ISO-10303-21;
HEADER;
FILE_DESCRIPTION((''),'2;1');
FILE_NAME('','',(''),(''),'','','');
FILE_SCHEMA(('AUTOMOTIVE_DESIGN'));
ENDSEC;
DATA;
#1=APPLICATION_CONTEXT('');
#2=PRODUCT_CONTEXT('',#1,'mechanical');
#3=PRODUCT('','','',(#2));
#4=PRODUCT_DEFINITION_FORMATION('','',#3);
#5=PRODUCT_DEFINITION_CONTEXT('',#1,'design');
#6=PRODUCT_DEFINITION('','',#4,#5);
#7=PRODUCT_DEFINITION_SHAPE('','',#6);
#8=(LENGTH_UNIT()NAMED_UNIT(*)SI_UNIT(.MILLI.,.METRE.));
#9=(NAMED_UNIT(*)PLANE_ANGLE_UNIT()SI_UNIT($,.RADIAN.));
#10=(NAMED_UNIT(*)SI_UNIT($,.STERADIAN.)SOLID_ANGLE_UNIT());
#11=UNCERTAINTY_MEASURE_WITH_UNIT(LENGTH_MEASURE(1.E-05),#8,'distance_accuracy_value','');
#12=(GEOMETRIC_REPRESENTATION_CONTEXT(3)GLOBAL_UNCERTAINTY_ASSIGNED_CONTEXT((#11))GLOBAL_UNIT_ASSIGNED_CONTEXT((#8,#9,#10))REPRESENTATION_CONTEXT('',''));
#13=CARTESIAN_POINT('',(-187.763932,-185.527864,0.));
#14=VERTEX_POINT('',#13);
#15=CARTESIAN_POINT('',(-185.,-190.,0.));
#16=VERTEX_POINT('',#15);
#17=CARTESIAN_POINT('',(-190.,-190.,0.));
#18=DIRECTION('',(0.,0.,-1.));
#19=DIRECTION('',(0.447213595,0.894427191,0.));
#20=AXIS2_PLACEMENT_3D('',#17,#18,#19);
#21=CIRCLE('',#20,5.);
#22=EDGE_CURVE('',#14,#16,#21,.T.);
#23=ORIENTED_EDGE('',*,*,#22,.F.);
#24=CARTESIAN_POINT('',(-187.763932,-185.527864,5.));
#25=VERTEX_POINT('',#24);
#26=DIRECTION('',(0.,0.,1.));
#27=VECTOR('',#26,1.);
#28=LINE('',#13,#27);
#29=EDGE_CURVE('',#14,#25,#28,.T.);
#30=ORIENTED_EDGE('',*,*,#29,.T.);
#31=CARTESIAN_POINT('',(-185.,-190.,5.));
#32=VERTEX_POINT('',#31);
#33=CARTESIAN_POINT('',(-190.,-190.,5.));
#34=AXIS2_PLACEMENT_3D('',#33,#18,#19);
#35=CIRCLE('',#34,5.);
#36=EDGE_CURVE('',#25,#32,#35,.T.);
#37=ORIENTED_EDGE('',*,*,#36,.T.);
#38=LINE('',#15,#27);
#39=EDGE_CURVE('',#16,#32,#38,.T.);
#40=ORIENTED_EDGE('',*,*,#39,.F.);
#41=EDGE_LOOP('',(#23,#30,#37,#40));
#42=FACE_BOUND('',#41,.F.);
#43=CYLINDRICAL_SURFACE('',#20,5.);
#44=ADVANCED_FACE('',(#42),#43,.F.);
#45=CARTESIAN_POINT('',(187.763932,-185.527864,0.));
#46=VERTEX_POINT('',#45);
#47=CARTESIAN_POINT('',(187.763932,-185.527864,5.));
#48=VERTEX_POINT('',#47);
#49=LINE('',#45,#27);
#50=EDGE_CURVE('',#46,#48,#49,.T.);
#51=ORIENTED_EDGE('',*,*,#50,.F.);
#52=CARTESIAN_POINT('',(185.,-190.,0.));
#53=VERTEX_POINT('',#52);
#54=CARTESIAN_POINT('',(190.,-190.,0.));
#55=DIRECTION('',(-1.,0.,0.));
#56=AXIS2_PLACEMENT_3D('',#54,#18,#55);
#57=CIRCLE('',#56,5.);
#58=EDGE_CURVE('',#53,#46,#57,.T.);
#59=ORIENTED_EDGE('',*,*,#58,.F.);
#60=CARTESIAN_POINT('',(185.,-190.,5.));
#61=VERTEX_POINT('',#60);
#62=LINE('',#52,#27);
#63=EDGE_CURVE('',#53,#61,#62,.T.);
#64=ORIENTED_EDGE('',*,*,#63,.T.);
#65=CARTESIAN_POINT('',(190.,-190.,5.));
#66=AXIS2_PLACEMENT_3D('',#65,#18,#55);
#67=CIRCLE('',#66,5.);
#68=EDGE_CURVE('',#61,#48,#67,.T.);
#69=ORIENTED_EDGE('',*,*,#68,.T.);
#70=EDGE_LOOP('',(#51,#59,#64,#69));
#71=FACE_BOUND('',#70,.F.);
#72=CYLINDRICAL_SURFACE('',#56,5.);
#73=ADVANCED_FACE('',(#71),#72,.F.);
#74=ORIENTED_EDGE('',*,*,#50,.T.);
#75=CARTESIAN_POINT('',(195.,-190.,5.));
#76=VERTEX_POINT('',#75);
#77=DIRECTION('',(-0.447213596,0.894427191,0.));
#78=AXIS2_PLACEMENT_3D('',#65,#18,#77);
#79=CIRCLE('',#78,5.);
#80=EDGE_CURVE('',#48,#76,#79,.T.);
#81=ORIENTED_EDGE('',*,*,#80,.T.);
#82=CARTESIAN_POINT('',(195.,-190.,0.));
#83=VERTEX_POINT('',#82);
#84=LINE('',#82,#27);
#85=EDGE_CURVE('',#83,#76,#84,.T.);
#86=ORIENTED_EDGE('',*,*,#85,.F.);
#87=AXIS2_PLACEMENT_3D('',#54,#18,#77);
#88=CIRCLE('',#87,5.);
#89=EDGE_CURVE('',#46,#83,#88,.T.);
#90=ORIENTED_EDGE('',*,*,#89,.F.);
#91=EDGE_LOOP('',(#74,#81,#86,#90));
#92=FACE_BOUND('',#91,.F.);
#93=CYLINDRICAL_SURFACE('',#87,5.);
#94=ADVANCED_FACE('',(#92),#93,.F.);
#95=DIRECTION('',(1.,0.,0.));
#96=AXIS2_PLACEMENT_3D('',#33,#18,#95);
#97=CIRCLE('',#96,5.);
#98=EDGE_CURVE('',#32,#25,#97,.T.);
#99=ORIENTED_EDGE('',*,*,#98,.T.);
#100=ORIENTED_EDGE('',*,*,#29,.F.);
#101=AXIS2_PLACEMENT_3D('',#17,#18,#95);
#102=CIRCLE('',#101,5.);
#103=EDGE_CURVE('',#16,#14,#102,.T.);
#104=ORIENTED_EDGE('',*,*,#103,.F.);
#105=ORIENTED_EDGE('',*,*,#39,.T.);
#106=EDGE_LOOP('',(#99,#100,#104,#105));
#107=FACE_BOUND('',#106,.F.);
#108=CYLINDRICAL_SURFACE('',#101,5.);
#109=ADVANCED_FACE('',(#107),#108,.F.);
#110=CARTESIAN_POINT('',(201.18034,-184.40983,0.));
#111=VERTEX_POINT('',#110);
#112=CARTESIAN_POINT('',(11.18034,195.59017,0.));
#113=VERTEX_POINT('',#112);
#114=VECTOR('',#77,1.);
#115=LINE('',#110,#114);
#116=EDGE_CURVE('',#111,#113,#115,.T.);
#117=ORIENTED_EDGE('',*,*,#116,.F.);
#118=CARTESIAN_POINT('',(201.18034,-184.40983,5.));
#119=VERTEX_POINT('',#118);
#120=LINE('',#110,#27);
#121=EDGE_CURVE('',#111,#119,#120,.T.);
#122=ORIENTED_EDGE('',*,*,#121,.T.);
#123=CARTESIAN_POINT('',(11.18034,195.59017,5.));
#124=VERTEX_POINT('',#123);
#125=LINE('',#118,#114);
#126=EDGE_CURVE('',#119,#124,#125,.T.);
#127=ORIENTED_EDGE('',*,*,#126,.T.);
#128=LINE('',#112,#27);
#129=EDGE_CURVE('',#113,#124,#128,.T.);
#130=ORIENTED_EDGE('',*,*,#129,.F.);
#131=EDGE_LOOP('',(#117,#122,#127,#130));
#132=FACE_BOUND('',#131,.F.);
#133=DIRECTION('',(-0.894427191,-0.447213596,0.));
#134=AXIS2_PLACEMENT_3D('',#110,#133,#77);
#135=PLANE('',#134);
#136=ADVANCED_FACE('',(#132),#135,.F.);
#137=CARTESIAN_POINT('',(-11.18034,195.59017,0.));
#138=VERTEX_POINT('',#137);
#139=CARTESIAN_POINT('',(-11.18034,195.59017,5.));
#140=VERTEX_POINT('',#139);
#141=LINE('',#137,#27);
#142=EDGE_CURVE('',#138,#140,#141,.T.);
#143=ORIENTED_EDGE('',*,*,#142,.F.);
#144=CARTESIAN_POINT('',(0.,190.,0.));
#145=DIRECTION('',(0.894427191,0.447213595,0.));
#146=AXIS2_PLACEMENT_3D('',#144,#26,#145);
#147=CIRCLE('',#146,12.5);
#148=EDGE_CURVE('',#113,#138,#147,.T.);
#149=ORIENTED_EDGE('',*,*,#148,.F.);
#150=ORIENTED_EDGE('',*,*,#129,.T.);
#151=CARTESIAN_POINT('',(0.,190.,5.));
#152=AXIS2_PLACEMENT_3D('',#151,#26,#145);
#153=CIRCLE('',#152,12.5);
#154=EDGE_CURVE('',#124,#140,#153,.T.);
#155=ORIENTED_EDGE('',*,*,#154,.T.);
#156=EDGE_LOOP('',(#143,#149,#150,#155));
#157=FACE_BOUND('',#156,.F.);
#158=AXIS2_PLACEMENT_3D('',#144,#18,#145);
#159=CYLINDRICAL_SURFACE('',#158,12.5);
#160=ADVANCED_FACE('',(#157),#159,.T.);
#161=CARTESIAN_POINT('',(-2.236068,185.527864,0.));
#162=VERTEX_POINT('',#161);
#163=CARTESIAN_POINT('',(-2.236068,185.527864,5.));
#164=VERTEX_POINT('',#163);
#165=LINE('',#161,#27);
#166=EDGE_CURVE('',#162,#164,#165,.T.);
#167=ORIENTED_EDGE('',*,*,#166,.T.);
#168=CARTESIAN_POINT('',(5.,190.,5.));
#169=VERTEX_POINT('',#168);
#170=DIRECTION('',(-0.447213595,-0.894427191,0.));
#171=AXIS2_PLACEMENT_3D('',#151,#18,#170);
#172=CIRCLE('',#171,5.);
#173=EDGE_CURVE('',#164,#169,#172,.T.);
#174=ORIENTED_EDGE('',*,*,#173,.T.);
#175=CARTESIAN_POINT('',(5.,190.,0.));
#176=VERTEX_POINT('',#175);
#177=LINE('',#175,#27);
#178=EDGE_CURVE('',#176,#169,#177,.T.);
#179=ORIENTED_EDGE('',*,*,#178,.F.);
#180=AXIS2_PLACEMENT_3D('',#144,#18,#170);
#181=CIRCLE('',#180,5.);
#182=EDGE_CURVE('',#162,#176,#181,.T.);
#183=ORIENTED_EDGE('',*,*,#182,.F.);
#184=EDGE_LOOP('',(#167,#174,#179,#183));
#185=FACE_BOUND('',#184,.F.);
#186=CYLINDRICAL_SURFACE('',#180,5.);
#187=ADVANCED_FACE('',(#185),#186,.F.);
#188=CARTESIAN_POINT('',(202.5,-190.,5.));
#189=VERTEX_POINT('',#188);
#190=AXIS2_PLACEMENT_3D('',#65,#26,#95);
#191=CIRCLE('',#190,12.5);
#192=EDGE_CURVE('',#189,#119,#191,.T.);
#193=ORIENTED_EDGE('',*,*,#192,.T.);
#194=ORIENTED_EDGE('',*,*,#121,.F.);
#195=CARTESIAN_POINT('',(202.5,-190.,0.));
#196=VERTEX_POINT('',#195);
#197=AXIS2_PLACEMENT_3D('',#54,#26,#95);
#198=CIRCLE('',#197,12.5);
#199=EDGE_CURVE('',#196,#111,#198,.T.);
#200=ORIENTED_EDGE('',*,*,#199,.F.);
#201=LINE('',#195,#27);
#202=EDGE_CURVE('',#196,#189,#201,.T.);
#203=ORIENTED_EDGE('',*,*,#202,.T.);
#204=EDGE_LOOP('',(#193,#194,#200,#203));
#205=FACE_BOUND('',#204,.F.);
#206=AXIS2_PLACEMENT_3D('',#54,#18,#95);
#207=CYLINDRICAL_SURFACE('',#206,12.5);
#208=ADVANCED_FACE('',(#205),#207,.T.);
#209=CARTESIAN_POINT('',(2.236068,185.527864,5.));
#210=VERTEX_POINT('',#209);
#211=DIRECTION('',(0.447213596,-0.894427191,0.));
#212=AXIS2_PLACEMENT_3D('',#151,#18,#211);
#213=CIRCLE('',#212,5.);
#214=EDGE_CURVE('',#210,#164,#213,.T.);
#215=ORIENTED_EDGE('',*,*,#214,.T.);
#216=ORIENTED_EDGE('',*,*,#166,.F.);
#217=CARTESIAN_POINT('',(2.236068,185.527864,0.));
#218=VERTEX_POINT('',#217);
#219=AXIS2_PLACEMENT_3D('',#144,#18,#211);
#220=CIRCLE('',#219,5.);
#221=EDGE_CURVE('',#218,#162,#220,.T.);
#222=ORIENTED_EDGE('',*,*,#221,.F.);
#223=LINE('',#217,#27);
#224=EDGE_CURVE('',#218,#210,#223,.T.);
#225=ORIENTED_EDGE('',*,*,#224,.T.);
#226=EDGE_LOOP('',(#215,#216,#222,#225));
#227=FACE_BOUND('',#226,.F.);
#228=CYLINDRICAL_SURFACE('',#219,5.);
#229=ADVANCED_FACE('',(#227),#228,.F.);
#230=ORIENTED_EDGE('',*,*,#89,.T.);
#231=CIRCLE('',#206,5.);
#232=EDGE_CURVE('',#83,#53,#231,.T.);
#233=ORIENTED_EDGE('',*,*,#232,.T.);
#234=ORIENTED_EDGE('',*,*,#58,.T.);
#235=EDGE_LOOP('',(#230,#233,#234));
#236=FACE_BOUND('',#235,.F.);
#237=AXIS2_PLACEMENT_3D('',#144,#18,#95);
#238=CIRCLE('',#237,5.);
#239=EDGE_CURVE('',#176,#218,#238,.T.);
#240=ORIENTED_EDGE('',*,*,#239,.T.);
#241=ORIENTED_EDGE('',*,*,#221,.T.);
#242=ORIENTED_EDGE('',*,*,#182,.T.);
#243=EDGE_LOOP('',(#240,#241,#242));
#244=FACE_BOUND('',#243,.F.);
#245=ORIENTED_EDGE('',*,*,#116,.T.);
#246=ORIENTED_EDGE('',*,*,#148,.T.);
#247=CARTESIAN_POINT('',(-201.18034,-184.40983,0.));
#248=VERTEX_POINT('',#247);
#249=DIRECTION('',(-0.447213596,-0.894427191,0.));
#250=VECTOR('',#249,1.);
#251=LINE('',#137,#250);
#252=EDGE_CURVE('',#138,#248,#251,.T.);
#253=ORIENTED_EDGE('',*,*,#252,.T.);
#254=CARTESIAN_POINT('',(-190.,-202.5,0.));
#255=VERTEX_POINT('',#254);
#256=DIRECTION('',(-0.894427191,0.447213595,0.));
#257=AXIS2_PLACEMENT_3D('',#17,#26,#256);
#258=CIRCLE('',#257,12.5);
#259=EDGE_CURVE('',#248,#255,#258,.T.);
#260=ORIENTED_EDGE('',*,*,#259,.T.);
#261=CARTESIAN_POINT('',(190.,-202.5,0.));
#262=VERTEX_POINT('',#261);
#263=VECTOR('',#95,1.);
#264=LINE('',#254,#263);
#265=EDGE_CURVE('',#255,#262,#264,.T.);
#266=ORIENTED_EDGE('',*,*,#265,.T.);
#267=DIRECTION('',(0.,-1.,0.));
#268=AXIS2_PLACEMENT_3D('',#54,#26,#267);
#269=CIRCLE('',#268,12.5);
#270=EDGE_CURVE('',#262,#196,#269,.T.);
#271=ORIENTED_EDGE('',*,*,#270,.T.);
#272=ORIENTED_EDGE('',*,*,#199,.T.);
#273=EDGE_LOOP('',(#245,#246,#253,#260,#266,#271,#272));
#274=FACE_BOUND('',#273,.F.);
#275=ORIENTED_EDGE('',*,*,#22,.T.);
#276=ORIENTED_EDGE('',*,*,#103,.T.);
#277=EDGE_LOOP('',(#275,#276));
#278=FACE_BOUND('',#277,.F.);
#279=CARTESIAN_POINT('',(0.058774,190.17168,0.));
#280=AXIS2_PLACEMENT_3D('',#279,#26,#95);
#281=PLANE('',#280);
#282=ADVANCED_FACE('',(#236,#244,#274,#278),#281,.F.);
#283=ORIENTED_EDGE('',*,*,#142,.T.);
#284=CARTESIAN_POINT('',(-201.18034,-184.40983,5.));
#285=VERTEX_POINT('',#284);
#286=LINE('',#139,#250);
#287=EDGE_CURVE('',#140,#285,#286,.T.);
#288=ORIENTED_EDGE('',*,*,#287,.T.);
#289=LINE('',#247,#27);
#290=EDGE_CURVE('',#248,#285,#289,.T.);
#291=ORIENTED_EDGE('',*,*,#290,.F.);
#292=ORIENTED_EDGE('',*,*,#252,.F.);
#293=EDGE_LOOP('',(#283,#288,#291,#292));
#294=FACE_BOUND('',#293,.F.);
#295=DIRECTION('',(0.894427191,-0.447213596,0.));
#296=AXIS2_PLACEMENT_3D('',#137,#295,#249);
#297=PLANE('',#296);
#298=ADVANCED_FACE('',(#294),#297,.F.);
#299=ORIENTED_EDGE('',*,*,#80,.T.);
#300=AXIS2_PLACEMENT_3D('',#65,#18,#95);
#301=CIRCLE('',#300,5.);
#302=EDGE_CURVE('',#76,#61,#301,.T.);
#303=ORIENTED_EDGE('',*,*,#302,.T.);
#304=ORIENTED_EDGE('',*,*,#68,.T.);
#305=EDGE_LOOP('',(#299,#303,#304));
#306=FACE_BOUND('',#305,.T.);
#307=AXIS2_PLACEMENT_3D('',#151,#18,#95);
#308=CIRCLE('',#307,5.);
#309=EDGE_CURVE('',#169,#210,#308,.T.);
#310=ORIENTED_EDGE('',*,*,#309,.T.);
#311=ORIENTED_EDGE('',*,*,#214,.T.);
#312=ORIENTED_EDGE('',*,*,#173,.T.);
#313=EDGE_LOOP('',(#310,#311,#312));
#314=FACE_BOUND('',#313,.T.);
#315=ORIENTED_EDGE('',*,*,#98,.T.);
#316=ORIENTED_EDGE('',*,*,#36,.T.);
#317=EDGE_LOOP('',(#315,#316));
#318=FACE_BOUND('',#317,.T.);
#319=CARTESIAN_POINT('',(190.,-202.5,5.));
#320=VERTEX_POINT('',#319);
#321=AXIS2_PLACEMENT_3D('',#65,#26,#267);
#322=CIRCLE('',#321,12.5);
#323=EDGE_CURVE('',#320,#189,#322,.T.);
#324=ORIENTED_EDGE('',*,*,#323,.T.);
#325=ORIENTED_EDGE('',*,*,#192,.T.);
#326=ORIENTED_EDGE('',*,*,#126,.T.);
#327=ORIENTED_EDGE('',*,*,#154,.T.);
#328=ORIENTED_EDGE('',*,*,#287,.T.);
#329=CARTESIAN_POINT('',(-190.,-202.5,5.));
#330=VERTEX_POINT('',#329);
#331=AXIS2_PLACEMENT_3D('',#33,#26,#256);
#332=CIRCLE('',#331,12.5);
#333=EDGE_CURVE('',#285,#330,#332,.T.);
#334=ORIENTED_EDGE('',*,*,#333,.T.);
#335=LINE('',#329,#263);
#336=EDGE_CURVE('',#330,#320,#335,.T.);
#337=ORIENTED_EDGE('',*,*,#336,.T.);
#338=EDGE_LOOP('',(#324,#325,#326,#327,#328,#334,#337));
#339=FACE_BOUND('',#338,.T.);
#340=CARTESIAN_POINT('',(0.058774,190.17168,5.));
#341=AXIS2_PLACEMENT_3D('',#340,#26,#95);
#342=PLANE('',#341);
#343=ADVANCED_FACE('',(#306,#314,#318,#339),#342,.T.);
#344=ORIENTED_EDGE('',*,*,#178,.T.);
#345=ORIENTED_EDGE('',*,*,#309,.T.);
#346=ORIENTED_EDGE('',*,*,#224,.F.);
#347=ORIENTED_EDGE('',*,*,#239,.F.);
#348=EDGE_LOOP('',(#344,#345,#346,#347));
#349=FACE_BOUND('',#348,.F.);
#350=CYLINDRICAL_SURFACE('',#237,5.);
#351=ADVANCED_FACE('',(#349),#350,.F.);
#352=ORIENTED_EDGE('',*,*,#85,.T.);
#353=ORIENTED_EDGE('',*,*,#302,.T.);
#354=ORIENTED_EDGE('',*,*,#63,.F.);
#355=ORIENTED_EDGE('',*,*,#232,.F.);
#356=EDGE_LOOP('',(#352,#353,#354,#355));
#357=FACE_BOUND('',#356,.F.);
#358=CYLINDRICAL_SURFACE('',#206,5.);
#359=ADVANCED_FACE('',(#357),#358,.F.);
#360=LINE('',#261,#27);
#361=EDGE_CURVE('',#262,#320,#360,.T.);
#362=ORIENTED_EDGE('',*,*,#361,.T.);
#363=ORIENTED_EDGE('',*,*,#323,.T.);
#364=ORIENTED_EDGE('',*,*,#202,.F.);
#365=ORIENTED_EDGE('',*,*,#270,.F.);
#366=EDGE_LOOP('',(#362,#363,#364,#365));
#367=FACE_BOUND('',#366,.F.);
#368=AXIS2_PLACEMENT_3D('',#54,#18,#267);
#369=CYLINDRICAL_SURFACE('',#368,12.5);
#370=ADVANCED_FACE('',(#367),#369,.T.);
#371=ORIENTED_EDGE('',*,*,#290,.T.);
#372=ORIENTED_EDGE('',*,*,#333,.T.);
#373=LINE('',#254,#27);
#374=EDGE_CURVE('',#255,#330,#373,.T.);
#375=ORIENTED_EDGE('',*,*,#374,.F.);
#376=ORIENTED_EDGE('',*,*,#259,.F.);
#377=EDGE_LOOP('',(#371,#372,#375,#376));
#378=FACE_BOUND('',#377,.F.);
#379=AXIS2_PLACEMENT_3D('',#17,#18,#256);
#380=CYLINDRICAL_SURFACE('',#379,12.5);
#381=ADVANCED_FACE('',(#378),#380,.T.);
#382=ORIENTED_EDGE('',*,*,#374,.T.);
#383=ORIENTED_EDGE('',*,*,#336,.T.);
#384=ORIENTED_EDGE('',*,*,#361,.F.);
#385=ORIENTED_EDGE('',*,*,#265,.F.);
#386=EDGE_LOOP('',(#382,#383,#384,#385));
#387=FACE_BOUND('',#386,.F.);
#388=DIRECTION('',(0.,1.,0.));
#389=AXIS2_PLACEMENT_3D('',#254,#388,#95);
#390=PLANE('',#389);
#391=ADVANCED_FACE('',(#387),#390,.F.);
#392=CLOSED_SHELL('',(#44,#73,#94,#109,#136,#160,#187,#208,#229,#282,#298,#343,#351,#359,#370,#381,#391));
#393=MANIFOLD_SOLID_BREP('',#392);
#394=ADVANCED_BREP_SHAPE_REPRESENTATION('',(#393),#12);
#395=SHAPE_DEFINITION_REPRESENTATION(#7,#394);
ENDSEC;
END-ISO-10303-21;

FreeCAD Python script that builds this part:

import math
import FreeCAD as App
import Part
import Sketcher
Q = App.Units.Quantity

doc = App.newDocument("Part")
body = doc.addObject("PartDesign::Body", "Body")

# Sketch on XY plane
sketch1 = body.newObject("Sketcher::SketchObject", "Sketch")
sketch1.AttachmentSupport = (doc.getObject("XY_Plane"), [""])
sketch1.MapMode = "FlatFace"
sketch1.addGeometry(Part.LineSegment(App.Vector(201.2, -184.4, 0), App.Vector(11.2, 195.6, 0)), False)
sketch1.addGeometry(Part.ArcOfCircle(Part.Circle(App.Vector(0, 190, 0), App.Vector(0, 0, 1), 12.5), math.radians(27), math.radians(153)), False)
sketch1.addGeometry(Part.LineSegment(App.Vector(-11.2, 195.6, 0), App.Vector(-201.2, -184.4, 0)), False)
sketch1.addGeometry(Part.ArcOfCircle(Part.Circle(App.Vector(-190, -190, 0), App.Vector(0, 0, 1), 12.5), math.radians(153), math.radians(270)), False)
sketch1.addGeometry(Part.LineSegment(App.Vector(-190, -202.5, 0), App.Vector(190, -202.5, 0)), False)
sketch1.addGeometry(Part.ArcOfCircle(Part.Circle(App.Vector(190, -190, 0), App.Vector(0, 0, 1), 12.5), math.radians(-90), math.radians(0)), False)
sketch1.addGeometry(Part.ArcOfCircle(Part.Circle(App.Vector(190, -190, 0), App.Vector(0, 0, 1), 12.5), math.radians(0), math.radians(27)), False)
sketch1.addGeometry(Part.ArcOfCircle(Part.Circle(App.Vector(190, -190, 0), App.Vector(0, 0, 1), 5), math.radians(0), math.radians(117)), False)
sketch1.addGeometry(Part.ArcOfCircle(Part.Circle(App.Vector(190, -190, 0), App.Vector(0, 0, 1), 5), math.radians(180), math.radians(360)), False)
sketch1.addGeometry(Part.ArcOfCircle(Part.Circle(App.Vector(190, -190, 0), App.Vector(0, 0, 1), 5), math.radians(117), math.radians(180)), False)
sketch1.addGeometry(Part.ArcOfCircle(Part.Circle(App.Vector(-190, -190, 0), App.Vector(0, 0, 1), 5), math.radians(63), math.radians(360)), False)
sketch1.addGeometry(Part.ArcOfCircle(Part.Circle(App.Vector(-190, -190, 0), App.Vector(0, 0, 1), 5), math.radians(0), math.radians(63)), False)
sketch1.addGeometry(Part.ArcOfCircle(Part.Circle(App.Vector(0, 190, 0), App.Vector(0, 0, 1), 5), math.radians(0), math.radians(243)), False)
sketch1.addGeometry(Part.ArcOfCircle(Part.Circle(App.Vector(0, 190, 0), App.Vector(0, 0, 1), 5), math.radians(-63), math.radians(0)), False)
sketch1.addGeometry(Part.ArcOfCircle(Part.Circle(App.Vector(0, 190, 0), App.Vector(0, 0, 1), 5), math.radians(-117), math.radians(-63)), False)
sketch1.addConstraint(Sketcher.Constraint("Tangent", 0, 2, 1, 1))
sketch1.addConstraint(Sketcher.Constraint("Tangent", 1, 2, 2, 1))
sketch1.addConstraint(Sketcher.Constraint("Tangent", 2, 2, 3, 1))
sketch1.addConstraint(Sketcher.Constraint("Tangent", 3, 2, 4, 1))
sketch1.addConstraint(Sketcher.Constraint("Tangent", 4, 2, 5, 1))
sketch1.addConstraint(Sketcher.Constraint("Tangent", 5, 2, 6, 1))
sketch1.addConstraint(Sketcher.Constraint("Tangent", 6, 2, 0, 1))
sketch1.addConstraint(Sketcher.Constraint("Tangent", 7, 1, 8, 2))
sketch1.addConstraint(Sketcher.Constraint("Tangent", 8, 1, 9, 2))
sketch1.addConstraint(Sketcher.Constraint("Tangent", 9, 1, 7, 2))
sketch1.addConstraint(Sketcher.Constraint("Tangent", 10, 1, 11, 2))
sketch1.addConstraint(Sketcher.Constraint("Coincident", 11, 1, 10, 2))
sketch1.addConstraint(Sketcher.Constraint("Tangent", 12, 1, 13, 2))
sketch1.addConstraint(Sketcher.Constraint("Tangent", 13, 1, 14, 2))
sketch1.addConstraint(Sketcher.Constraint("Tangent", 14, 1, 12, 2))
sketch1.addConstraint(Sketcher.Constraint("Horizontal", 4))
sketch1.addConstraint(Sketcher.Constraint("Coincident", 7, 3, 5, 3))
sketch1.addConstraint(Sketcher.Constraint("Coincident", 10, 3, 3, 3))
sketch1.addConstraint(Sketcher.Constraint("Coincident", 12, 3, 1, 3))
sketch1.addConstraint(Sketcher.Constraint("Equal", 1, 3))
sketch1.addConstraint(Sketcher.Constraint("Equal", 3, 5))
sketch1.addConstraint(Sketcher.Constraint("Equal", 5, 6))
sketch1.addConstraint(Sketcher.Constraint("Equal", 9, 10))
sketch1.addConstraint(Sketcher.Constraint("Equal", 11, 12))
sketch1.addConstraint(Sketcher.Constraint("Symmetric", 9, 1, 10, 1, -2))
sketch1.addConstraint(Sketcher.Constraint("Symmetric", 13, 1, 14, 1, -2))
sketch1.addConstraint(Sketcher.Constraint("Horizontal", 11, 3, 5, 2))
sketch1.addConstraint(Sketcher.Constraint("Horizontal", 5, 2, 7, 1))
sketch1.addConstraint(Sketcher.Constraint("Horizontal", 7, 1, 8, 1))
sketch1.addConstraint(Sketcher.Constraint("Horizontal", 8, 1, 11, 1))
sketch1.addConstraint(Sketcher.Constraint("Horizontal", 14, 3, 12, 1))
sketch1.addConstraint(Sketcher.Constraint("Radius", 7, Q("5 mm")))
sketch1.addConstraint(Sketcher.Constraint("Radius", 1, Q("12.5 mm")))
sketch1.addConstraint(Sketcher.Constraint("DistanceX", 4, 1, 4, 2, Q("380 mm")))
sketch1.addConstraint(Sketcher.Constraint("DistanceY", -1, 1, 1, 3, Q("190 mm")))
sketch1.addConstraint(Sketcher.Constraint("DistanceY", 3, 3, -1, 1, Q("190 mm")))
sketch1.addConstraint(Sketcher.Constraint("DistanceX", -1, 1, 9, 1, Q("187.763932 mm")))
sketch1.addConstraint(Sketcher.Constraint("DistanceX", -1, 1, 13, 1, Q("2.236068 mm")))
pad1 = body.newObject("PartDesign::Pad", "Pad")
pad1.Profile = sketch1
pad1.Length = 5

doc.recompute()
